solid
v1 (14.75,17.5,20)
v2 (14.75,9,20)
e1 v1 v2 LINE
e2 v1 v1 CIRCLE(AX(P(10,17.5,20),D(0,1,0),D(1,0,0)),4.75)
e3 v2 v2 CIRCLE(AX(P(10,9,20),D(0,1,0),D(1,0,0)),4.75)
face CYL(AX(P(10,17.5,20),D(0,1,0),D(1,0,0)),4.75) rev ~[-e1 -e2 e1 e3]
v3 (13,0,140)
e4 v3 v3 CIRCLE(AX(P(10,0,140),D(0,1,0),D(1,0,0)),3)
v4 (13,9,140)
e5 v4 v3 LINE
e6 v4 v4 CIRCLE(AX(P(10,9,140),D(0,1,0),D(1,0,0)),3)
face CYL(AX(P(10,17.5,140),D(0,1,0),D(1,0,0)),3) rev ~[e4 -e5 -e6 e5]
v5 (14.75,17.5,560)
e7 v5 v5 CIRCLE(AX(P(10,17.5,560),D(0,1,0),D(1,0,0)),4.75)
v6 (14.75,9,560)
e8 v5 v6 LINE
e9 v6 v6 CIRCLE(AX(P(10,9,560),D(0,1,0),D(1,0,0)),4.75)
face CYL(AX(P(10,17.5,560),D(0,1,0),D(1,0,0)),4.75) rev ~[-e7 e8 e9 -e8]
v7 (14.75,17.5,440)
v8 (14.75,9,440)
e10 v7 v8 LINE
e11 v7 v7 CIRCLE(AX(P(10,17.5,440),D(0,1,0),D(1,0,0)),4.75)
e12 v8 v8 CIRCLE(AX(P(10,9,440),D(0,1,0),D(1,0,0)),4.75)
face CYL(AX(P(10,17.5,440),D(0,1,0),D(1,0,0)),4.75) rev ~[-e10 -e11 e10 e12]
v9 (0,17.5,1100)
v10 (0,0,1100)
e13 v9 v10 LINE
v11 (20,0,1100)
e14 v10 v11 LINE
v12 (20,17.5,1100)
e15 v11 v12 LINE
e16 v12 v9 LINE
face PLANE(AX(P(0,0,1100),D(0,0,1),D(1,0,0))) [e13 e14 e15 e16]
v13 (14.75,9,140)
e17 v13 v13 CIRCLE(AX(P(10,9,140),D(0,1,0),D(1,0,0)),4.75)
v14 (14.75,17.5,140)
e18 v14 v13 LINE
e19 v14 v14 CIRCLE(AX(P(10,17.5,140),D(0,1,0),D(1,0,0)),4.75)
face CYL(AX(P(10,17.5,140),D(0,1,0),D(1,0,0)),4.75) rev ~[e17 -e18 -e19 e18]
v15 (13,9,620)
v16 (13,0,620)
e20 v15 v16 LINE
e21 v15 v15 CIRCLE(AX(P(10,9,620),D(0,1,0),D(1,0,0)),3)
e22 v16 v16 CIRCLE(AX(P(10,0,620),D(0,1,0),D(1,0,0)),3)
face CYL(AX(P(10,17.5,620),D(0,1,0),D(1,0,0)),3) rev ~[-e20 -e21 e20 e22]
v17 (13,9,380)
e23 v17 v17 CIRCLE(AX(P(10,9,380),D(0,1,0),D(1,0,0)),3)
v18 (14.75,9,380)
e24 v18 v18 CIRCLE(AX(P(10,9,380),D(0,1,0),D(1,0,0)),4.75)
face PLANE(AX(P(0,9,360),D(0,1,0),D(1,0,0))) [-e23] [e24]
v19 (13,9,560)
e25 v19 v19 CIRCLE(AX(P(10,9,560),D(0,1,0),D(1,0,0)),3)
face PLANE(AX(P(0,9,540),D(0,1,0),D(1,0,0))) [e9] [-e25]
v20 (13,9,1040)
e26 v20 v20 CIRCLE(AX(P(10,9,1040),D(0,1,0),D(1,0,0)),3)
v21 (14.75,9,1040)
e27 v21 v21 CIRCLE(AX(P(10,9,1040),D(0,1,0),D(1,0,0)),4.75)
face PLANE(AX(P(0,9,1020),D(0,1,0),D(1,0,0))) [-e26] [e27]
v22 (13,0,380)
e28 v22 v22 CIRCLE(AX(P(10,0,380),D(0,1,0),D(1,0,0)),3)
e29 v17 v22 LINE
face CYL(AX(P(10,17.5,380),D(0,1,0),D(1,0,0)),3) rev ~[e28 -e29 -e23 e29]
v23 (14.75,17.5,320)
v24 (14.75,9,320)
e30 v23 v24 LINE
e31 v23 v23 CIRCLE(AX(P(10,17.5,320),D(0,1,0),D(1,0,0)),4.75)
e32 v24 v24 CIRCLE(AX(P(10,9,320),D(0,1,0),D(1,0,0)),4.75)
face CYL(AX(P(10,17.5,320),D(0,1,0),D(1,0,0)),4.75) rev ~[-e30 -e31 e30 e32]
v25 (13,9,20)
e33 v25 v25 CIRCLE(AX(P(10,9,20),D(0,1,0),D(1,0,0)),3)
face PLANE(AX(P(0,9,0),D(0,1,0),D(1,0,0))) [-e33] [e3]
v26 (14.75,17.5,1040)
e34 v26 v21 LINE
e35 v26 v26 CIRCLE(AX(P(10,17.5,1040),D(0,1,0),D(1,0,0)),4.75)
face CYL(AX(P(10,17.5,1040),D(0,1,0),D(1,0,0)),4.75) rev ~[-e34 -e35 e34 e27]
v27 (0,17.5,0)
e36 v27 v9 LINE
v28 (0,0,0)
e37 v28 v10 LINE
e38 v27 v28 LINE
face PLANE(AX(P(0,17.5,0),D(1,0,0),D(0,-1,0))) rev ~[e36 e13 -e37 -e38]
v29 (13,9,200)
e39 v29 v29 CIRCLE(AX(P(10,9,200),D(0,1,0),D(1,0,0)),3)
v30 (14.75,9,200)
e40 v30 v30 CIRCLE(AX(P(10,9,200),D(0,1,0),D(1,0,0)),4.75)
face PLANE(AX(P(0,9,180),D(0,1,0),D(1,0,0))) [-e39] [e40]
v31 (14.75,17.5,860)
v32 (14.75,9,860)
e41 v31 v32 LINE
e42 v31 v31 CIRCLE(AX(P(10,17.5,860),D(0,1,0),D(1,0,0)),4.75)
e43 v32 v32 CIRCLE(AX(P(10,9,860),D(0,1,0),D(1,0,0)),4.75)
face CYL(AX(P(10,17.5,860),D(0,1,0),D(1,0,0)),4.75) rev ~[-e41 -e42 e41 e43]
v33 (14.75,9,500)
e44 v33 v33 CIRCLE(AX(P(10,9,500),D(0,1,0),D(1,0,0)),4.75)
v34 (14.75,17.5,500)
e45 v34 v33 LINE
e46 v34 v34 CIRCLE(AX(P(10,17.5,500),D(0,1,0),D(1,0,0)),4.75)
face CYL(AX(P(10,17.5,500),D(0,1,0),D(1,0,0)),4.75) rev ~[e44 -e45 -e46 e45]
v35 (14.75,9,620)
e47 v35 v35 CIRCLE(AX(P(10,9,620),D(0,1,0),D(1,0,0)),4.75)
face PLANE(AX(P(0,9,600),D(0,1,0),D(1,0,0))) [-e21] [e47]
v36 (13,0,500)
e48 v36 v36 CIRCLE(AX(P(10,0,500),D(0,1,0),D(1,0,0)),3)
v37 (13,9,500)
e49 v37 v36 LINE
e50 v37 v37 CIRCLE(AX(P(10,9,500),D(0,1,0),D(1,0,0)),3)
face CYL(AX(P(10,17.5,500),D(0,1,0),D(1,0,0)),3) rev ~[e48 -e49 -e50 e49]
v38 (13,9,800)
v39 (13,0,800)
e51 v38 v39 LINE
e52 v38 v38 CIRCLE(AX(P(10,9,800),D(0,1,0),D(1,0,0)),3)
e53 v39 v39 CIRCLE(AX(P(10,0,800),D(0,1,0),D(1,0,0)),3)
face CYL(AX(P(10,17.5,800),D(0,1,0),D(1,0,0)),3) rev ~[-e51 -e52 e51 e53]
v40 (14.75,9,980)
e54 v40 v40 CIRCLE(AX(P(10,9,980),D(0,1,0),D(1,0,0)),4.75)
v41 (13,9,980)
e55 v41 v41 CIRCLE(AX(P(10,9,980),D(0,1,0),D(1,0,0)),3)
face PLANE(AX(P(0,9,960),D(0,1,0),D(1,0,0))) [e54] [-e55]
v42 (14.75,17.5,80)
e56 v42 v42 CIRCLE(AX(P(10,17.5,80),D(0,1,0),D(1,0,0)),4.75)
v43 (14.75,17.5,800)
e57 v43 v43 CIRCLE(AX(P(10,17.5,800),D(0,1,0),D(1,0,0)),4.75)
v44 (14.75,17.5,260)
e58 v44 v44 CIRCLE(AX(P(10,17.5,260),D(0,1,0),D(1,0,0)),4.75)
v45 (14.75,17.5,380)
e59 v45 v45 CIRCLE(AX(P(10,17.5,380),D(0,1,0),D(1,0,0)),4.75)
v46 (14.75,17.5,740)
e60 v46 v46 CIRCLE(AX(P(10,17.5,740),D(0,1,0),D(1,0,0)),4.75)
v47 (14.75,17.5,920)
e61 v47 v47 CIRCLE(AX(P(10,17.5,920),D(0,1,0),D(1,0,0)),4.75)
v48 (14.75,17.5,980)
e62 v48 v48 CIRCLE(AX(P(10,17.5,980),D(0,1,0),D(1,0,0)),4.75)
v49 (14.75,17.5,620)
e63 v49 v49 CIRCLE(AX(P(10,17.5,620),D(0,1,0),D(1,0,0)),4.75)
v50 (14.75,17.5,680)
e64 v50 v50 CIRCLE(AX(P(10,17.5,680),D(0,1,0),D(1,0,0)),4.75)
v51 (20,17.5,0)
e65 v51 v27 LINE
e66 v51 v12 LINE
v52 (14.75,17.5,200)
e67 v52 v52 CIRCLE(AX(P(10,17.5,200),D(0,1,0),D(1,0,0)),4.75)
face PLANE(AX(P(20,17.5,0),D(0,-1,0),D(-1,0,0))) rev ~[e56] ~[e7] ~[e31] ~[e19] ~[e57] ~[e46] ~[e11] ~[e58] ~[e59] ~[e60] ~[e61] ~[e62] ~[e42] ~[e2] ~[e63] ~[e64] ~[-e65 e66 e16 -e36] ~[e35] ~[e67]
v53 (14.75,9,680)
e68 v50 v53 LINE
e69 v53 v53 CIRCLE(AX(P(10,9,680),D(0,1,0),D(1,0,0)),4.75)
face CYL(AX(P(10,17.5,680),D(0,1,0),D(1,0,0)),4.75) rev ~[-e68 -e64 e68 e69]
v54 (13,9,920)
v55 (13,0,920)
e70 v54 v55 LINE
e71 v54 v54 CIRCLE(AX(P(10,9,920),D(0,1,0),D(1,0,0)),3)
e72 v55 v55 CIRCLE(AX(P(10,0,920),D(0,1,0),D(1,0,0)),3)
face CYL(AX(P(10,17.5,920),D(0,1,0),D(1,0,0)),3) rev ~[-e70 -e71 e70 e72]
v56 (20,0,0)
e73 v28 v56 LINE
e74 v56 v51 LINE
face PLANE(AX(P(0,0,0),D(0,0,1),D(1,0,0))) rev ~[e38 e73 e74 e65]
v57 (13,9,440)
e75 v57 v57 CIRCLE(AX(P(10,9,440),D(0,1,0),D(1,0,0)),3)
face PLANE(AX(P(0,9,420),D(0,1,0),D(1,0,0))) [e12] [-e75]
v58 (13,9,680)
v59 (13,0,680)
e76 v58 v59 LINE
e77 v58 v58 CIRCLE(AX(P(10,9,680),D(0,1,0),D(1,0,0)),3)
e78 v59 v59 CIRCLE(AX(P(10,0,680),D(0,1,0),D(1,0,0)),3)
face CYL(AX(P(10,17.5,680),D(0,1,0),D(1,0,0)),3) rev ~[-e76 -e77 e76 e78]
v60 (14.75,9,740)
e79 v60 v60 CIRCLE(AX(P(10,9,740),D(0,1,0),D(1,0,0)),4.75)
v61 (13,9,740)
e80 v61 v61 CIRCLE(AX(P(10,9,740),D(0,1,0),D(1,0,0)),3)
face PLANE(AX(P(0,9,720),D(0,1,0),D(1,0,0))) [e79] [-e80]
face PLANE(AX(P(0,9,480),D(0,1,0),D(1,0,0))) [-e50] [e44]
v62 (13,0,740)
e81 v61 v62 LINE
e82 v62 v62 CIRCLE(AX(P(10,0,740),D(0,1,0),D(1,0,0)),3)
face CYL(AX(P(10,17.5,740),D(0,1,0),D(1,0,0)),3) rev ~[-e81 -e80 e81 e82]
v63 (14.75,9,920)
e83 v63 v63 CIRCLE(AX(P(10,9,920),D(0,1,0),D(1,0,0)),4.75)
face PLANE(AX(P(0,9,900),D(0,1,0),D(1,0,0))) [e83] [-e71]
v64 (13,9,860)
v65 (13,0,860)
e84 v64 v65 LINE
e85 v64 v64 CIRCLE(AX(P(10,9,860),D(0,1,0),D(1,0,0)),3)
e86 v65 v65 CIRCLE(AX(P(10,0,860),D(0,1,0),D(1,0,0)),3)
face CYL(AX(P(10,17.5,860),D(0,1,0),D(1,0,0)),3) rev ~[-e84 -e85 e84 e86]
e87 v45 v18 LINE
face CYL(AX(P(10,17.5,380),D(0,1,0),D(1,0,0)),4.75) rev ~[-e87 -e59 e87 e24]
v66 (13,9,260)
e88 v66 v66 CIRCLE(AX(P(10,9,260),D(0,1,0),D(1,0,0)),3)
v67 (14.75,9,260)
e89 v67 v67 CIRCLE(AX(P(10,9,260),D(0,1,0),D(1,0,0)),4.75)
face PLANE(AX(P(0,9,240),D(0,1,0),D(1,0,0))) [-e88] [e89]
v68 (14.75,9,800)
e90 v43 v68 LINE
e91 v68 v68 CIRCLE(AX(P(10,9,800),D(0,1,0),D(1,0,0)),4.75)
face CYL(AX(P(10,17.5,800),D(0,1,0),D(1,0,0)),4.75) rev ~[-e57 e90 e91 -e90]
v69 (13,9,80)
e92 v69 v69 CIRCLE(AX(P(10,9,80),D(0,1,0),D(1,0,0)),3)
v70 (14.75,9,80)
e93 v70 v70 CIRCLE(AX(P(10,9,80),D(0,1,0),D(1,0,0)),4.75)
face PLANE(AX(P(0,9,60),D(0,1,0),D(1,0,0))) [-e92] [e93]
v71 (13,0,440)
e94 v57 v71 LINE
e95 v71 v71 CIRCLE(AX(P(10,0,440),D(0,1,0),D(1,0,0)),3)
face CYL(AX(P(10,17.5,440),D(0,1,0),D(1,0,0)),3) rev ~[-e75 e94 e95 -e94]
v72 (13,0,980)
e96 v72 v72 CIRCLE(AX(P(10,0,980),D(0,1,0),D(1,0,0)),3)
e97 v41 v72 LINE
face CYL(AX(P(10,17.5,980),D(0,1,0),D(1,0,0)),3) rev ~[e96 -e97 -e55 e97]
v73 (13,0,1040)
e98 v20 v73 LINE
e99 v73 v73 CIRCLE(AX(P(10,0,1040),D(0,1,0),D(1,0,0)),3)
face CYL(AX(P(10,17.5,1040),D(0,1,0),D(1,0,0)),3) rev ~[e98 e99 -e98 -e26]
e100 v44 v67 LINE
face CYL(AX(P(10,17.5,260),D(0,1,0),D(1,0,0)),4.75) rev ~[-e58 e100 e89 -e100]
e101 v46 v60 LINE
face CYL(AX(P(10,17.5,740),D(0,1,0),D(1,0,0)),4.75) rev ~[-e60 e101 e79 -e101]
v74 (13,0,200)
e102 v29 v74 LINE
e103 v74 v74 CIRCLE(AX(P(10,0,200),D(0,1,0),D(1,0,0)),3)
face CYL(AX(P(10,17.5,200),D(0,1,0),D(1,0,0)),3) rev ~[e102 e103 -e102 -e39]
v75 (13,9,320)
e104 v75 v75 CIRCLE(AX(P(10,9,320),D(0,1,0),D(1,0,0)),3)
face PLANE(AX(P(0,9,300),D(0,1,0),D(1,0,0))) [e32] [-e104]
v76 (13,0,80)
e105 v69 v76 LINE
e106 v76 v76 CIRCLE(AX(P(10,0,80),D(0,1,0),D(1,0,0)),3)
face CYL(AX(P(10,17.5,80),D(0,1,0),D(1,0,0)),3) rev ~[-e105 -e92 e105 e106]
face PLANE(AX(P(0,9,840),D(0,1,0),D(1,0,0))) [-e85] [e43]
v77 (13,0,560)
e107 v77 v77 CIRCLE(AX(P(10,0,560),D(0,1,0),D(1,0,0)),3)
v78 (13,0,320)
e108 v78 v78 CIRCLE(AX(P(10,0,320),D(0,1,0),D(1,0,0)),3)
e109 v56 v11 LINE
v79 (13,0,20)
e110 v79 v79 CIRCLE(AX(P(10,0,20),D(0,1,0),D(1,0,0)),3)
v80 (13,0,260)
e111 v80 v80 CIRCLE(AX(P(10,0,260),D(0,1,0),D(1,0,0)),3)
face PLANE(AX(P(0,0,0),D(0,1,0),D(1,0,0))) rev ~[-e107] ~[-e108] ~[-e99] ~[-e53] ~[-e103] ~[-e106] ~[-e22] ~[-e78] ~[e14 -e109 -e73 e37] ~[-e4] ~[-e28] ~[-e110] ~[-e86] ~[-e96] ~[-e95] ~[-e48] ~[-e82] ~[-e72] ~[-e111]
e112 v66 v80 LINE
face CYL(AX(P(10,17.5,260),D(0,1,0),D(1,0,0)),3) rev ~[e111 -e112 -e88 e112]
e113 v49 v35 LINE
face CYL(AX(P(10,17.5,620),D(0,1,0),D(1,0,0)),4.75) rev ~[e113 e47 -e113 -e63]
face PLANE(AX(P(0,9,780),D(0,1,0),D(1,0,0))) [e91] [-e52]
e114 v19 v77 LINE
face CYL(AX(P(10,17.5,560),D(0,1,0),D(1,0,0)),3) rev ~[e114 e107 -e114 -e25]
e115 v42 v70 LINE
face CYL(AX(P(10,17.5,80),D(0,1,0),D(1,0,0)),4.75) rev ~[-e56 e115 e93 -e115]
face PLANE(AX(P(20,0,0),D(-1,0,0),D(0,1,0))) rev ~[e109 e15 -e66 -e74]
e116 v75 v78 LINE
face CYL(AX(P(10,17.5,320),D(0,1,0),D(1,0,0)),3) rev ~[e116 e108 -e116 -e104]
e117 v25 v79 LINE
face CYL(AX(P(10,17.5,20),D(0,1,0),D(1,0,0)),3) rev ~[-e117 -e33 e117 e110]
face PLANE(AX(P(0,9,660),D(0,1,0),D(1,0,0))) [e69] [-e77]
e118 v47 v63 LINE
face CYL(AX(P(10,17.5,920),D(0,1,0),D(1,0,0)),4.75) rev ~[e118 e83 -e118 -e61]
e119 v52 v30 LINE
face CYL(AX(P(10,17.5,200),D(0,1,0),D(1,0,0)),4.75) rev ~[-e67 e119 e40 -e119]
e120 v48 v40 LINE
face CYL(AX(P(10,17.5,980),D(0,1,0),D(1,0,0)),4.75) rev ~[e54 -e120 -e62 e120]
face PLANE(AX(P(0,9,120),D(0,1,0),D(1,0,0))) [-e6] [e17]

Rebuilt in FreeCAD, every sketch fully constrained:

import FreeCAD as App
import Part
import Sketcher

V = App.Vector


def add_polygon(sketch, points):
    """Adds a closed chain of lines whose ends are joined by coincident constraints."""
    first, n = sketch.GeometryCount, len(points)
    for a, b in zip(points, points[1:] + points[:1]):
        sketch.addGeometry(Part.LineSegment(App.Vector(*a, 0), App.Vector(*b, 0)), False)
    for i in range(n):
        sketch.addConstraint(Sketcher.Constraint("Coincident", first + i, 2, first + (i + 1) % n, 1))

doc = App.newDocument("Part")
body = doc.addObject("PartDesign::Body", "Body")

sketch1 = body.newObject("Sketcher::SketchObject", "Sketch")
sketch1.AttachmentSupport = (doc.getObject("XY_Plane"), [""])
sketch1.MapMode = "FlatFace"
add_polygon(sketch1, [(0, 18), (0, 0), (20, 0), (20, 18)])
sketch1.addConstraint(Sketcher.Constraint("Vertical", 0))
sketch1.addConstraint(Sketcher.Constraint("Horizontal", 1))
sketch1.addConstraint(Sketcher.Constraint("Vertical", 2))
sketch1.addConstraint(Sketcher.Constraint("Horizontal", 3))
sketch1.addConstraint(Sketcher.Constraint("Coincident", 0, 2, -1, 1))
sketch1.addConstraint(Sketcher.Constraint("DistanceX", 1, 1, 1, 2, 20.0))
sketch1.addConstraint(Sketcher.Constraint("DistanceY", 0, 2, 0, 1, 17.5))
pad1 = body.newObject("PartDesign::Pad", "Pad")
pad1.Profile = sketch1
pad1.Length = 1100

sketch2 = body.newObject("Sketcher::SketchObject", "Sketch001")
sketch2.AttachmentSupport = (doc.getObject("XZ_Plane"), [""])
sketch2.MapMode = "FlatFace"
sketch2.AttachmentOffset = App.Placement(V(0, 0, -17.5), App.Rotation())
sketch2.addGeometry(Part.Circle(V(10, 20, 0), V(0, 0, 1), 3), False)
sketch2.addConstraint(Sketcher.Constraint("Diameter", 0, 6.0))
sketch2.addConstraint(Sketcher.Constraint("DistanceY", -1, 1, 0, 3, 20.0))
sketch2.addConstraint(Sketcher.Constraint("DistanceX", -1, 1, 0, 3, 10.0))
pocket1 = body.newObject("PartDesign::Pocket", "Pocket")
pocket1.Profile = sketch2
pocket1.Length = 17.5
pocket1.Reversed = True

sketch3 = body.newObject("Sketcher::SketchObject", "Sketch002")
sketch3.AttachmentSupport = (doc.getObject("XZ_Plane"), [""])
sketch3.MapMode = "FlatFace"
sketch3.AttachmentOffset = App.Placement(V(0, 0, -17.5), App.Rotation())
sketch3.addGeometry(Part.Circle(V(10, 20, 0), V(0, 0, 1), 4.8), False)
sketch3.addConstraint(Sketcher.Constraint("Diameter", 0, 9.5))
sketch3.addConstraint(Sketcher.Constraint("DistanceX", -1, 1, 0, 3, 10.0))
sketch3.addConstraint(Sketcher.Constraint("DistanceY", -1, 1, 0, 3, 20.0))
pocket2 = body.newObject("PartDesign::Pocket", "Pocket001")
pocket2.Profile = sketch3
pocket2.Length = 8.5
pocket2.Reversed = True
doc.recompute()

linearpattern = body.newObject("PartDesign::LinearPattern", "LinearPattern")
linearpattern.Originals = [pocket1, pocket2]
linearpattern.Direction = (doc.getObject("Z_Axis"), [""])
linearpattern.Mode = "offset"
linearpattern.Offset = 60
linearpattern.Occurrences = 18
body.Tip = linearpattern

doc.recompute()
